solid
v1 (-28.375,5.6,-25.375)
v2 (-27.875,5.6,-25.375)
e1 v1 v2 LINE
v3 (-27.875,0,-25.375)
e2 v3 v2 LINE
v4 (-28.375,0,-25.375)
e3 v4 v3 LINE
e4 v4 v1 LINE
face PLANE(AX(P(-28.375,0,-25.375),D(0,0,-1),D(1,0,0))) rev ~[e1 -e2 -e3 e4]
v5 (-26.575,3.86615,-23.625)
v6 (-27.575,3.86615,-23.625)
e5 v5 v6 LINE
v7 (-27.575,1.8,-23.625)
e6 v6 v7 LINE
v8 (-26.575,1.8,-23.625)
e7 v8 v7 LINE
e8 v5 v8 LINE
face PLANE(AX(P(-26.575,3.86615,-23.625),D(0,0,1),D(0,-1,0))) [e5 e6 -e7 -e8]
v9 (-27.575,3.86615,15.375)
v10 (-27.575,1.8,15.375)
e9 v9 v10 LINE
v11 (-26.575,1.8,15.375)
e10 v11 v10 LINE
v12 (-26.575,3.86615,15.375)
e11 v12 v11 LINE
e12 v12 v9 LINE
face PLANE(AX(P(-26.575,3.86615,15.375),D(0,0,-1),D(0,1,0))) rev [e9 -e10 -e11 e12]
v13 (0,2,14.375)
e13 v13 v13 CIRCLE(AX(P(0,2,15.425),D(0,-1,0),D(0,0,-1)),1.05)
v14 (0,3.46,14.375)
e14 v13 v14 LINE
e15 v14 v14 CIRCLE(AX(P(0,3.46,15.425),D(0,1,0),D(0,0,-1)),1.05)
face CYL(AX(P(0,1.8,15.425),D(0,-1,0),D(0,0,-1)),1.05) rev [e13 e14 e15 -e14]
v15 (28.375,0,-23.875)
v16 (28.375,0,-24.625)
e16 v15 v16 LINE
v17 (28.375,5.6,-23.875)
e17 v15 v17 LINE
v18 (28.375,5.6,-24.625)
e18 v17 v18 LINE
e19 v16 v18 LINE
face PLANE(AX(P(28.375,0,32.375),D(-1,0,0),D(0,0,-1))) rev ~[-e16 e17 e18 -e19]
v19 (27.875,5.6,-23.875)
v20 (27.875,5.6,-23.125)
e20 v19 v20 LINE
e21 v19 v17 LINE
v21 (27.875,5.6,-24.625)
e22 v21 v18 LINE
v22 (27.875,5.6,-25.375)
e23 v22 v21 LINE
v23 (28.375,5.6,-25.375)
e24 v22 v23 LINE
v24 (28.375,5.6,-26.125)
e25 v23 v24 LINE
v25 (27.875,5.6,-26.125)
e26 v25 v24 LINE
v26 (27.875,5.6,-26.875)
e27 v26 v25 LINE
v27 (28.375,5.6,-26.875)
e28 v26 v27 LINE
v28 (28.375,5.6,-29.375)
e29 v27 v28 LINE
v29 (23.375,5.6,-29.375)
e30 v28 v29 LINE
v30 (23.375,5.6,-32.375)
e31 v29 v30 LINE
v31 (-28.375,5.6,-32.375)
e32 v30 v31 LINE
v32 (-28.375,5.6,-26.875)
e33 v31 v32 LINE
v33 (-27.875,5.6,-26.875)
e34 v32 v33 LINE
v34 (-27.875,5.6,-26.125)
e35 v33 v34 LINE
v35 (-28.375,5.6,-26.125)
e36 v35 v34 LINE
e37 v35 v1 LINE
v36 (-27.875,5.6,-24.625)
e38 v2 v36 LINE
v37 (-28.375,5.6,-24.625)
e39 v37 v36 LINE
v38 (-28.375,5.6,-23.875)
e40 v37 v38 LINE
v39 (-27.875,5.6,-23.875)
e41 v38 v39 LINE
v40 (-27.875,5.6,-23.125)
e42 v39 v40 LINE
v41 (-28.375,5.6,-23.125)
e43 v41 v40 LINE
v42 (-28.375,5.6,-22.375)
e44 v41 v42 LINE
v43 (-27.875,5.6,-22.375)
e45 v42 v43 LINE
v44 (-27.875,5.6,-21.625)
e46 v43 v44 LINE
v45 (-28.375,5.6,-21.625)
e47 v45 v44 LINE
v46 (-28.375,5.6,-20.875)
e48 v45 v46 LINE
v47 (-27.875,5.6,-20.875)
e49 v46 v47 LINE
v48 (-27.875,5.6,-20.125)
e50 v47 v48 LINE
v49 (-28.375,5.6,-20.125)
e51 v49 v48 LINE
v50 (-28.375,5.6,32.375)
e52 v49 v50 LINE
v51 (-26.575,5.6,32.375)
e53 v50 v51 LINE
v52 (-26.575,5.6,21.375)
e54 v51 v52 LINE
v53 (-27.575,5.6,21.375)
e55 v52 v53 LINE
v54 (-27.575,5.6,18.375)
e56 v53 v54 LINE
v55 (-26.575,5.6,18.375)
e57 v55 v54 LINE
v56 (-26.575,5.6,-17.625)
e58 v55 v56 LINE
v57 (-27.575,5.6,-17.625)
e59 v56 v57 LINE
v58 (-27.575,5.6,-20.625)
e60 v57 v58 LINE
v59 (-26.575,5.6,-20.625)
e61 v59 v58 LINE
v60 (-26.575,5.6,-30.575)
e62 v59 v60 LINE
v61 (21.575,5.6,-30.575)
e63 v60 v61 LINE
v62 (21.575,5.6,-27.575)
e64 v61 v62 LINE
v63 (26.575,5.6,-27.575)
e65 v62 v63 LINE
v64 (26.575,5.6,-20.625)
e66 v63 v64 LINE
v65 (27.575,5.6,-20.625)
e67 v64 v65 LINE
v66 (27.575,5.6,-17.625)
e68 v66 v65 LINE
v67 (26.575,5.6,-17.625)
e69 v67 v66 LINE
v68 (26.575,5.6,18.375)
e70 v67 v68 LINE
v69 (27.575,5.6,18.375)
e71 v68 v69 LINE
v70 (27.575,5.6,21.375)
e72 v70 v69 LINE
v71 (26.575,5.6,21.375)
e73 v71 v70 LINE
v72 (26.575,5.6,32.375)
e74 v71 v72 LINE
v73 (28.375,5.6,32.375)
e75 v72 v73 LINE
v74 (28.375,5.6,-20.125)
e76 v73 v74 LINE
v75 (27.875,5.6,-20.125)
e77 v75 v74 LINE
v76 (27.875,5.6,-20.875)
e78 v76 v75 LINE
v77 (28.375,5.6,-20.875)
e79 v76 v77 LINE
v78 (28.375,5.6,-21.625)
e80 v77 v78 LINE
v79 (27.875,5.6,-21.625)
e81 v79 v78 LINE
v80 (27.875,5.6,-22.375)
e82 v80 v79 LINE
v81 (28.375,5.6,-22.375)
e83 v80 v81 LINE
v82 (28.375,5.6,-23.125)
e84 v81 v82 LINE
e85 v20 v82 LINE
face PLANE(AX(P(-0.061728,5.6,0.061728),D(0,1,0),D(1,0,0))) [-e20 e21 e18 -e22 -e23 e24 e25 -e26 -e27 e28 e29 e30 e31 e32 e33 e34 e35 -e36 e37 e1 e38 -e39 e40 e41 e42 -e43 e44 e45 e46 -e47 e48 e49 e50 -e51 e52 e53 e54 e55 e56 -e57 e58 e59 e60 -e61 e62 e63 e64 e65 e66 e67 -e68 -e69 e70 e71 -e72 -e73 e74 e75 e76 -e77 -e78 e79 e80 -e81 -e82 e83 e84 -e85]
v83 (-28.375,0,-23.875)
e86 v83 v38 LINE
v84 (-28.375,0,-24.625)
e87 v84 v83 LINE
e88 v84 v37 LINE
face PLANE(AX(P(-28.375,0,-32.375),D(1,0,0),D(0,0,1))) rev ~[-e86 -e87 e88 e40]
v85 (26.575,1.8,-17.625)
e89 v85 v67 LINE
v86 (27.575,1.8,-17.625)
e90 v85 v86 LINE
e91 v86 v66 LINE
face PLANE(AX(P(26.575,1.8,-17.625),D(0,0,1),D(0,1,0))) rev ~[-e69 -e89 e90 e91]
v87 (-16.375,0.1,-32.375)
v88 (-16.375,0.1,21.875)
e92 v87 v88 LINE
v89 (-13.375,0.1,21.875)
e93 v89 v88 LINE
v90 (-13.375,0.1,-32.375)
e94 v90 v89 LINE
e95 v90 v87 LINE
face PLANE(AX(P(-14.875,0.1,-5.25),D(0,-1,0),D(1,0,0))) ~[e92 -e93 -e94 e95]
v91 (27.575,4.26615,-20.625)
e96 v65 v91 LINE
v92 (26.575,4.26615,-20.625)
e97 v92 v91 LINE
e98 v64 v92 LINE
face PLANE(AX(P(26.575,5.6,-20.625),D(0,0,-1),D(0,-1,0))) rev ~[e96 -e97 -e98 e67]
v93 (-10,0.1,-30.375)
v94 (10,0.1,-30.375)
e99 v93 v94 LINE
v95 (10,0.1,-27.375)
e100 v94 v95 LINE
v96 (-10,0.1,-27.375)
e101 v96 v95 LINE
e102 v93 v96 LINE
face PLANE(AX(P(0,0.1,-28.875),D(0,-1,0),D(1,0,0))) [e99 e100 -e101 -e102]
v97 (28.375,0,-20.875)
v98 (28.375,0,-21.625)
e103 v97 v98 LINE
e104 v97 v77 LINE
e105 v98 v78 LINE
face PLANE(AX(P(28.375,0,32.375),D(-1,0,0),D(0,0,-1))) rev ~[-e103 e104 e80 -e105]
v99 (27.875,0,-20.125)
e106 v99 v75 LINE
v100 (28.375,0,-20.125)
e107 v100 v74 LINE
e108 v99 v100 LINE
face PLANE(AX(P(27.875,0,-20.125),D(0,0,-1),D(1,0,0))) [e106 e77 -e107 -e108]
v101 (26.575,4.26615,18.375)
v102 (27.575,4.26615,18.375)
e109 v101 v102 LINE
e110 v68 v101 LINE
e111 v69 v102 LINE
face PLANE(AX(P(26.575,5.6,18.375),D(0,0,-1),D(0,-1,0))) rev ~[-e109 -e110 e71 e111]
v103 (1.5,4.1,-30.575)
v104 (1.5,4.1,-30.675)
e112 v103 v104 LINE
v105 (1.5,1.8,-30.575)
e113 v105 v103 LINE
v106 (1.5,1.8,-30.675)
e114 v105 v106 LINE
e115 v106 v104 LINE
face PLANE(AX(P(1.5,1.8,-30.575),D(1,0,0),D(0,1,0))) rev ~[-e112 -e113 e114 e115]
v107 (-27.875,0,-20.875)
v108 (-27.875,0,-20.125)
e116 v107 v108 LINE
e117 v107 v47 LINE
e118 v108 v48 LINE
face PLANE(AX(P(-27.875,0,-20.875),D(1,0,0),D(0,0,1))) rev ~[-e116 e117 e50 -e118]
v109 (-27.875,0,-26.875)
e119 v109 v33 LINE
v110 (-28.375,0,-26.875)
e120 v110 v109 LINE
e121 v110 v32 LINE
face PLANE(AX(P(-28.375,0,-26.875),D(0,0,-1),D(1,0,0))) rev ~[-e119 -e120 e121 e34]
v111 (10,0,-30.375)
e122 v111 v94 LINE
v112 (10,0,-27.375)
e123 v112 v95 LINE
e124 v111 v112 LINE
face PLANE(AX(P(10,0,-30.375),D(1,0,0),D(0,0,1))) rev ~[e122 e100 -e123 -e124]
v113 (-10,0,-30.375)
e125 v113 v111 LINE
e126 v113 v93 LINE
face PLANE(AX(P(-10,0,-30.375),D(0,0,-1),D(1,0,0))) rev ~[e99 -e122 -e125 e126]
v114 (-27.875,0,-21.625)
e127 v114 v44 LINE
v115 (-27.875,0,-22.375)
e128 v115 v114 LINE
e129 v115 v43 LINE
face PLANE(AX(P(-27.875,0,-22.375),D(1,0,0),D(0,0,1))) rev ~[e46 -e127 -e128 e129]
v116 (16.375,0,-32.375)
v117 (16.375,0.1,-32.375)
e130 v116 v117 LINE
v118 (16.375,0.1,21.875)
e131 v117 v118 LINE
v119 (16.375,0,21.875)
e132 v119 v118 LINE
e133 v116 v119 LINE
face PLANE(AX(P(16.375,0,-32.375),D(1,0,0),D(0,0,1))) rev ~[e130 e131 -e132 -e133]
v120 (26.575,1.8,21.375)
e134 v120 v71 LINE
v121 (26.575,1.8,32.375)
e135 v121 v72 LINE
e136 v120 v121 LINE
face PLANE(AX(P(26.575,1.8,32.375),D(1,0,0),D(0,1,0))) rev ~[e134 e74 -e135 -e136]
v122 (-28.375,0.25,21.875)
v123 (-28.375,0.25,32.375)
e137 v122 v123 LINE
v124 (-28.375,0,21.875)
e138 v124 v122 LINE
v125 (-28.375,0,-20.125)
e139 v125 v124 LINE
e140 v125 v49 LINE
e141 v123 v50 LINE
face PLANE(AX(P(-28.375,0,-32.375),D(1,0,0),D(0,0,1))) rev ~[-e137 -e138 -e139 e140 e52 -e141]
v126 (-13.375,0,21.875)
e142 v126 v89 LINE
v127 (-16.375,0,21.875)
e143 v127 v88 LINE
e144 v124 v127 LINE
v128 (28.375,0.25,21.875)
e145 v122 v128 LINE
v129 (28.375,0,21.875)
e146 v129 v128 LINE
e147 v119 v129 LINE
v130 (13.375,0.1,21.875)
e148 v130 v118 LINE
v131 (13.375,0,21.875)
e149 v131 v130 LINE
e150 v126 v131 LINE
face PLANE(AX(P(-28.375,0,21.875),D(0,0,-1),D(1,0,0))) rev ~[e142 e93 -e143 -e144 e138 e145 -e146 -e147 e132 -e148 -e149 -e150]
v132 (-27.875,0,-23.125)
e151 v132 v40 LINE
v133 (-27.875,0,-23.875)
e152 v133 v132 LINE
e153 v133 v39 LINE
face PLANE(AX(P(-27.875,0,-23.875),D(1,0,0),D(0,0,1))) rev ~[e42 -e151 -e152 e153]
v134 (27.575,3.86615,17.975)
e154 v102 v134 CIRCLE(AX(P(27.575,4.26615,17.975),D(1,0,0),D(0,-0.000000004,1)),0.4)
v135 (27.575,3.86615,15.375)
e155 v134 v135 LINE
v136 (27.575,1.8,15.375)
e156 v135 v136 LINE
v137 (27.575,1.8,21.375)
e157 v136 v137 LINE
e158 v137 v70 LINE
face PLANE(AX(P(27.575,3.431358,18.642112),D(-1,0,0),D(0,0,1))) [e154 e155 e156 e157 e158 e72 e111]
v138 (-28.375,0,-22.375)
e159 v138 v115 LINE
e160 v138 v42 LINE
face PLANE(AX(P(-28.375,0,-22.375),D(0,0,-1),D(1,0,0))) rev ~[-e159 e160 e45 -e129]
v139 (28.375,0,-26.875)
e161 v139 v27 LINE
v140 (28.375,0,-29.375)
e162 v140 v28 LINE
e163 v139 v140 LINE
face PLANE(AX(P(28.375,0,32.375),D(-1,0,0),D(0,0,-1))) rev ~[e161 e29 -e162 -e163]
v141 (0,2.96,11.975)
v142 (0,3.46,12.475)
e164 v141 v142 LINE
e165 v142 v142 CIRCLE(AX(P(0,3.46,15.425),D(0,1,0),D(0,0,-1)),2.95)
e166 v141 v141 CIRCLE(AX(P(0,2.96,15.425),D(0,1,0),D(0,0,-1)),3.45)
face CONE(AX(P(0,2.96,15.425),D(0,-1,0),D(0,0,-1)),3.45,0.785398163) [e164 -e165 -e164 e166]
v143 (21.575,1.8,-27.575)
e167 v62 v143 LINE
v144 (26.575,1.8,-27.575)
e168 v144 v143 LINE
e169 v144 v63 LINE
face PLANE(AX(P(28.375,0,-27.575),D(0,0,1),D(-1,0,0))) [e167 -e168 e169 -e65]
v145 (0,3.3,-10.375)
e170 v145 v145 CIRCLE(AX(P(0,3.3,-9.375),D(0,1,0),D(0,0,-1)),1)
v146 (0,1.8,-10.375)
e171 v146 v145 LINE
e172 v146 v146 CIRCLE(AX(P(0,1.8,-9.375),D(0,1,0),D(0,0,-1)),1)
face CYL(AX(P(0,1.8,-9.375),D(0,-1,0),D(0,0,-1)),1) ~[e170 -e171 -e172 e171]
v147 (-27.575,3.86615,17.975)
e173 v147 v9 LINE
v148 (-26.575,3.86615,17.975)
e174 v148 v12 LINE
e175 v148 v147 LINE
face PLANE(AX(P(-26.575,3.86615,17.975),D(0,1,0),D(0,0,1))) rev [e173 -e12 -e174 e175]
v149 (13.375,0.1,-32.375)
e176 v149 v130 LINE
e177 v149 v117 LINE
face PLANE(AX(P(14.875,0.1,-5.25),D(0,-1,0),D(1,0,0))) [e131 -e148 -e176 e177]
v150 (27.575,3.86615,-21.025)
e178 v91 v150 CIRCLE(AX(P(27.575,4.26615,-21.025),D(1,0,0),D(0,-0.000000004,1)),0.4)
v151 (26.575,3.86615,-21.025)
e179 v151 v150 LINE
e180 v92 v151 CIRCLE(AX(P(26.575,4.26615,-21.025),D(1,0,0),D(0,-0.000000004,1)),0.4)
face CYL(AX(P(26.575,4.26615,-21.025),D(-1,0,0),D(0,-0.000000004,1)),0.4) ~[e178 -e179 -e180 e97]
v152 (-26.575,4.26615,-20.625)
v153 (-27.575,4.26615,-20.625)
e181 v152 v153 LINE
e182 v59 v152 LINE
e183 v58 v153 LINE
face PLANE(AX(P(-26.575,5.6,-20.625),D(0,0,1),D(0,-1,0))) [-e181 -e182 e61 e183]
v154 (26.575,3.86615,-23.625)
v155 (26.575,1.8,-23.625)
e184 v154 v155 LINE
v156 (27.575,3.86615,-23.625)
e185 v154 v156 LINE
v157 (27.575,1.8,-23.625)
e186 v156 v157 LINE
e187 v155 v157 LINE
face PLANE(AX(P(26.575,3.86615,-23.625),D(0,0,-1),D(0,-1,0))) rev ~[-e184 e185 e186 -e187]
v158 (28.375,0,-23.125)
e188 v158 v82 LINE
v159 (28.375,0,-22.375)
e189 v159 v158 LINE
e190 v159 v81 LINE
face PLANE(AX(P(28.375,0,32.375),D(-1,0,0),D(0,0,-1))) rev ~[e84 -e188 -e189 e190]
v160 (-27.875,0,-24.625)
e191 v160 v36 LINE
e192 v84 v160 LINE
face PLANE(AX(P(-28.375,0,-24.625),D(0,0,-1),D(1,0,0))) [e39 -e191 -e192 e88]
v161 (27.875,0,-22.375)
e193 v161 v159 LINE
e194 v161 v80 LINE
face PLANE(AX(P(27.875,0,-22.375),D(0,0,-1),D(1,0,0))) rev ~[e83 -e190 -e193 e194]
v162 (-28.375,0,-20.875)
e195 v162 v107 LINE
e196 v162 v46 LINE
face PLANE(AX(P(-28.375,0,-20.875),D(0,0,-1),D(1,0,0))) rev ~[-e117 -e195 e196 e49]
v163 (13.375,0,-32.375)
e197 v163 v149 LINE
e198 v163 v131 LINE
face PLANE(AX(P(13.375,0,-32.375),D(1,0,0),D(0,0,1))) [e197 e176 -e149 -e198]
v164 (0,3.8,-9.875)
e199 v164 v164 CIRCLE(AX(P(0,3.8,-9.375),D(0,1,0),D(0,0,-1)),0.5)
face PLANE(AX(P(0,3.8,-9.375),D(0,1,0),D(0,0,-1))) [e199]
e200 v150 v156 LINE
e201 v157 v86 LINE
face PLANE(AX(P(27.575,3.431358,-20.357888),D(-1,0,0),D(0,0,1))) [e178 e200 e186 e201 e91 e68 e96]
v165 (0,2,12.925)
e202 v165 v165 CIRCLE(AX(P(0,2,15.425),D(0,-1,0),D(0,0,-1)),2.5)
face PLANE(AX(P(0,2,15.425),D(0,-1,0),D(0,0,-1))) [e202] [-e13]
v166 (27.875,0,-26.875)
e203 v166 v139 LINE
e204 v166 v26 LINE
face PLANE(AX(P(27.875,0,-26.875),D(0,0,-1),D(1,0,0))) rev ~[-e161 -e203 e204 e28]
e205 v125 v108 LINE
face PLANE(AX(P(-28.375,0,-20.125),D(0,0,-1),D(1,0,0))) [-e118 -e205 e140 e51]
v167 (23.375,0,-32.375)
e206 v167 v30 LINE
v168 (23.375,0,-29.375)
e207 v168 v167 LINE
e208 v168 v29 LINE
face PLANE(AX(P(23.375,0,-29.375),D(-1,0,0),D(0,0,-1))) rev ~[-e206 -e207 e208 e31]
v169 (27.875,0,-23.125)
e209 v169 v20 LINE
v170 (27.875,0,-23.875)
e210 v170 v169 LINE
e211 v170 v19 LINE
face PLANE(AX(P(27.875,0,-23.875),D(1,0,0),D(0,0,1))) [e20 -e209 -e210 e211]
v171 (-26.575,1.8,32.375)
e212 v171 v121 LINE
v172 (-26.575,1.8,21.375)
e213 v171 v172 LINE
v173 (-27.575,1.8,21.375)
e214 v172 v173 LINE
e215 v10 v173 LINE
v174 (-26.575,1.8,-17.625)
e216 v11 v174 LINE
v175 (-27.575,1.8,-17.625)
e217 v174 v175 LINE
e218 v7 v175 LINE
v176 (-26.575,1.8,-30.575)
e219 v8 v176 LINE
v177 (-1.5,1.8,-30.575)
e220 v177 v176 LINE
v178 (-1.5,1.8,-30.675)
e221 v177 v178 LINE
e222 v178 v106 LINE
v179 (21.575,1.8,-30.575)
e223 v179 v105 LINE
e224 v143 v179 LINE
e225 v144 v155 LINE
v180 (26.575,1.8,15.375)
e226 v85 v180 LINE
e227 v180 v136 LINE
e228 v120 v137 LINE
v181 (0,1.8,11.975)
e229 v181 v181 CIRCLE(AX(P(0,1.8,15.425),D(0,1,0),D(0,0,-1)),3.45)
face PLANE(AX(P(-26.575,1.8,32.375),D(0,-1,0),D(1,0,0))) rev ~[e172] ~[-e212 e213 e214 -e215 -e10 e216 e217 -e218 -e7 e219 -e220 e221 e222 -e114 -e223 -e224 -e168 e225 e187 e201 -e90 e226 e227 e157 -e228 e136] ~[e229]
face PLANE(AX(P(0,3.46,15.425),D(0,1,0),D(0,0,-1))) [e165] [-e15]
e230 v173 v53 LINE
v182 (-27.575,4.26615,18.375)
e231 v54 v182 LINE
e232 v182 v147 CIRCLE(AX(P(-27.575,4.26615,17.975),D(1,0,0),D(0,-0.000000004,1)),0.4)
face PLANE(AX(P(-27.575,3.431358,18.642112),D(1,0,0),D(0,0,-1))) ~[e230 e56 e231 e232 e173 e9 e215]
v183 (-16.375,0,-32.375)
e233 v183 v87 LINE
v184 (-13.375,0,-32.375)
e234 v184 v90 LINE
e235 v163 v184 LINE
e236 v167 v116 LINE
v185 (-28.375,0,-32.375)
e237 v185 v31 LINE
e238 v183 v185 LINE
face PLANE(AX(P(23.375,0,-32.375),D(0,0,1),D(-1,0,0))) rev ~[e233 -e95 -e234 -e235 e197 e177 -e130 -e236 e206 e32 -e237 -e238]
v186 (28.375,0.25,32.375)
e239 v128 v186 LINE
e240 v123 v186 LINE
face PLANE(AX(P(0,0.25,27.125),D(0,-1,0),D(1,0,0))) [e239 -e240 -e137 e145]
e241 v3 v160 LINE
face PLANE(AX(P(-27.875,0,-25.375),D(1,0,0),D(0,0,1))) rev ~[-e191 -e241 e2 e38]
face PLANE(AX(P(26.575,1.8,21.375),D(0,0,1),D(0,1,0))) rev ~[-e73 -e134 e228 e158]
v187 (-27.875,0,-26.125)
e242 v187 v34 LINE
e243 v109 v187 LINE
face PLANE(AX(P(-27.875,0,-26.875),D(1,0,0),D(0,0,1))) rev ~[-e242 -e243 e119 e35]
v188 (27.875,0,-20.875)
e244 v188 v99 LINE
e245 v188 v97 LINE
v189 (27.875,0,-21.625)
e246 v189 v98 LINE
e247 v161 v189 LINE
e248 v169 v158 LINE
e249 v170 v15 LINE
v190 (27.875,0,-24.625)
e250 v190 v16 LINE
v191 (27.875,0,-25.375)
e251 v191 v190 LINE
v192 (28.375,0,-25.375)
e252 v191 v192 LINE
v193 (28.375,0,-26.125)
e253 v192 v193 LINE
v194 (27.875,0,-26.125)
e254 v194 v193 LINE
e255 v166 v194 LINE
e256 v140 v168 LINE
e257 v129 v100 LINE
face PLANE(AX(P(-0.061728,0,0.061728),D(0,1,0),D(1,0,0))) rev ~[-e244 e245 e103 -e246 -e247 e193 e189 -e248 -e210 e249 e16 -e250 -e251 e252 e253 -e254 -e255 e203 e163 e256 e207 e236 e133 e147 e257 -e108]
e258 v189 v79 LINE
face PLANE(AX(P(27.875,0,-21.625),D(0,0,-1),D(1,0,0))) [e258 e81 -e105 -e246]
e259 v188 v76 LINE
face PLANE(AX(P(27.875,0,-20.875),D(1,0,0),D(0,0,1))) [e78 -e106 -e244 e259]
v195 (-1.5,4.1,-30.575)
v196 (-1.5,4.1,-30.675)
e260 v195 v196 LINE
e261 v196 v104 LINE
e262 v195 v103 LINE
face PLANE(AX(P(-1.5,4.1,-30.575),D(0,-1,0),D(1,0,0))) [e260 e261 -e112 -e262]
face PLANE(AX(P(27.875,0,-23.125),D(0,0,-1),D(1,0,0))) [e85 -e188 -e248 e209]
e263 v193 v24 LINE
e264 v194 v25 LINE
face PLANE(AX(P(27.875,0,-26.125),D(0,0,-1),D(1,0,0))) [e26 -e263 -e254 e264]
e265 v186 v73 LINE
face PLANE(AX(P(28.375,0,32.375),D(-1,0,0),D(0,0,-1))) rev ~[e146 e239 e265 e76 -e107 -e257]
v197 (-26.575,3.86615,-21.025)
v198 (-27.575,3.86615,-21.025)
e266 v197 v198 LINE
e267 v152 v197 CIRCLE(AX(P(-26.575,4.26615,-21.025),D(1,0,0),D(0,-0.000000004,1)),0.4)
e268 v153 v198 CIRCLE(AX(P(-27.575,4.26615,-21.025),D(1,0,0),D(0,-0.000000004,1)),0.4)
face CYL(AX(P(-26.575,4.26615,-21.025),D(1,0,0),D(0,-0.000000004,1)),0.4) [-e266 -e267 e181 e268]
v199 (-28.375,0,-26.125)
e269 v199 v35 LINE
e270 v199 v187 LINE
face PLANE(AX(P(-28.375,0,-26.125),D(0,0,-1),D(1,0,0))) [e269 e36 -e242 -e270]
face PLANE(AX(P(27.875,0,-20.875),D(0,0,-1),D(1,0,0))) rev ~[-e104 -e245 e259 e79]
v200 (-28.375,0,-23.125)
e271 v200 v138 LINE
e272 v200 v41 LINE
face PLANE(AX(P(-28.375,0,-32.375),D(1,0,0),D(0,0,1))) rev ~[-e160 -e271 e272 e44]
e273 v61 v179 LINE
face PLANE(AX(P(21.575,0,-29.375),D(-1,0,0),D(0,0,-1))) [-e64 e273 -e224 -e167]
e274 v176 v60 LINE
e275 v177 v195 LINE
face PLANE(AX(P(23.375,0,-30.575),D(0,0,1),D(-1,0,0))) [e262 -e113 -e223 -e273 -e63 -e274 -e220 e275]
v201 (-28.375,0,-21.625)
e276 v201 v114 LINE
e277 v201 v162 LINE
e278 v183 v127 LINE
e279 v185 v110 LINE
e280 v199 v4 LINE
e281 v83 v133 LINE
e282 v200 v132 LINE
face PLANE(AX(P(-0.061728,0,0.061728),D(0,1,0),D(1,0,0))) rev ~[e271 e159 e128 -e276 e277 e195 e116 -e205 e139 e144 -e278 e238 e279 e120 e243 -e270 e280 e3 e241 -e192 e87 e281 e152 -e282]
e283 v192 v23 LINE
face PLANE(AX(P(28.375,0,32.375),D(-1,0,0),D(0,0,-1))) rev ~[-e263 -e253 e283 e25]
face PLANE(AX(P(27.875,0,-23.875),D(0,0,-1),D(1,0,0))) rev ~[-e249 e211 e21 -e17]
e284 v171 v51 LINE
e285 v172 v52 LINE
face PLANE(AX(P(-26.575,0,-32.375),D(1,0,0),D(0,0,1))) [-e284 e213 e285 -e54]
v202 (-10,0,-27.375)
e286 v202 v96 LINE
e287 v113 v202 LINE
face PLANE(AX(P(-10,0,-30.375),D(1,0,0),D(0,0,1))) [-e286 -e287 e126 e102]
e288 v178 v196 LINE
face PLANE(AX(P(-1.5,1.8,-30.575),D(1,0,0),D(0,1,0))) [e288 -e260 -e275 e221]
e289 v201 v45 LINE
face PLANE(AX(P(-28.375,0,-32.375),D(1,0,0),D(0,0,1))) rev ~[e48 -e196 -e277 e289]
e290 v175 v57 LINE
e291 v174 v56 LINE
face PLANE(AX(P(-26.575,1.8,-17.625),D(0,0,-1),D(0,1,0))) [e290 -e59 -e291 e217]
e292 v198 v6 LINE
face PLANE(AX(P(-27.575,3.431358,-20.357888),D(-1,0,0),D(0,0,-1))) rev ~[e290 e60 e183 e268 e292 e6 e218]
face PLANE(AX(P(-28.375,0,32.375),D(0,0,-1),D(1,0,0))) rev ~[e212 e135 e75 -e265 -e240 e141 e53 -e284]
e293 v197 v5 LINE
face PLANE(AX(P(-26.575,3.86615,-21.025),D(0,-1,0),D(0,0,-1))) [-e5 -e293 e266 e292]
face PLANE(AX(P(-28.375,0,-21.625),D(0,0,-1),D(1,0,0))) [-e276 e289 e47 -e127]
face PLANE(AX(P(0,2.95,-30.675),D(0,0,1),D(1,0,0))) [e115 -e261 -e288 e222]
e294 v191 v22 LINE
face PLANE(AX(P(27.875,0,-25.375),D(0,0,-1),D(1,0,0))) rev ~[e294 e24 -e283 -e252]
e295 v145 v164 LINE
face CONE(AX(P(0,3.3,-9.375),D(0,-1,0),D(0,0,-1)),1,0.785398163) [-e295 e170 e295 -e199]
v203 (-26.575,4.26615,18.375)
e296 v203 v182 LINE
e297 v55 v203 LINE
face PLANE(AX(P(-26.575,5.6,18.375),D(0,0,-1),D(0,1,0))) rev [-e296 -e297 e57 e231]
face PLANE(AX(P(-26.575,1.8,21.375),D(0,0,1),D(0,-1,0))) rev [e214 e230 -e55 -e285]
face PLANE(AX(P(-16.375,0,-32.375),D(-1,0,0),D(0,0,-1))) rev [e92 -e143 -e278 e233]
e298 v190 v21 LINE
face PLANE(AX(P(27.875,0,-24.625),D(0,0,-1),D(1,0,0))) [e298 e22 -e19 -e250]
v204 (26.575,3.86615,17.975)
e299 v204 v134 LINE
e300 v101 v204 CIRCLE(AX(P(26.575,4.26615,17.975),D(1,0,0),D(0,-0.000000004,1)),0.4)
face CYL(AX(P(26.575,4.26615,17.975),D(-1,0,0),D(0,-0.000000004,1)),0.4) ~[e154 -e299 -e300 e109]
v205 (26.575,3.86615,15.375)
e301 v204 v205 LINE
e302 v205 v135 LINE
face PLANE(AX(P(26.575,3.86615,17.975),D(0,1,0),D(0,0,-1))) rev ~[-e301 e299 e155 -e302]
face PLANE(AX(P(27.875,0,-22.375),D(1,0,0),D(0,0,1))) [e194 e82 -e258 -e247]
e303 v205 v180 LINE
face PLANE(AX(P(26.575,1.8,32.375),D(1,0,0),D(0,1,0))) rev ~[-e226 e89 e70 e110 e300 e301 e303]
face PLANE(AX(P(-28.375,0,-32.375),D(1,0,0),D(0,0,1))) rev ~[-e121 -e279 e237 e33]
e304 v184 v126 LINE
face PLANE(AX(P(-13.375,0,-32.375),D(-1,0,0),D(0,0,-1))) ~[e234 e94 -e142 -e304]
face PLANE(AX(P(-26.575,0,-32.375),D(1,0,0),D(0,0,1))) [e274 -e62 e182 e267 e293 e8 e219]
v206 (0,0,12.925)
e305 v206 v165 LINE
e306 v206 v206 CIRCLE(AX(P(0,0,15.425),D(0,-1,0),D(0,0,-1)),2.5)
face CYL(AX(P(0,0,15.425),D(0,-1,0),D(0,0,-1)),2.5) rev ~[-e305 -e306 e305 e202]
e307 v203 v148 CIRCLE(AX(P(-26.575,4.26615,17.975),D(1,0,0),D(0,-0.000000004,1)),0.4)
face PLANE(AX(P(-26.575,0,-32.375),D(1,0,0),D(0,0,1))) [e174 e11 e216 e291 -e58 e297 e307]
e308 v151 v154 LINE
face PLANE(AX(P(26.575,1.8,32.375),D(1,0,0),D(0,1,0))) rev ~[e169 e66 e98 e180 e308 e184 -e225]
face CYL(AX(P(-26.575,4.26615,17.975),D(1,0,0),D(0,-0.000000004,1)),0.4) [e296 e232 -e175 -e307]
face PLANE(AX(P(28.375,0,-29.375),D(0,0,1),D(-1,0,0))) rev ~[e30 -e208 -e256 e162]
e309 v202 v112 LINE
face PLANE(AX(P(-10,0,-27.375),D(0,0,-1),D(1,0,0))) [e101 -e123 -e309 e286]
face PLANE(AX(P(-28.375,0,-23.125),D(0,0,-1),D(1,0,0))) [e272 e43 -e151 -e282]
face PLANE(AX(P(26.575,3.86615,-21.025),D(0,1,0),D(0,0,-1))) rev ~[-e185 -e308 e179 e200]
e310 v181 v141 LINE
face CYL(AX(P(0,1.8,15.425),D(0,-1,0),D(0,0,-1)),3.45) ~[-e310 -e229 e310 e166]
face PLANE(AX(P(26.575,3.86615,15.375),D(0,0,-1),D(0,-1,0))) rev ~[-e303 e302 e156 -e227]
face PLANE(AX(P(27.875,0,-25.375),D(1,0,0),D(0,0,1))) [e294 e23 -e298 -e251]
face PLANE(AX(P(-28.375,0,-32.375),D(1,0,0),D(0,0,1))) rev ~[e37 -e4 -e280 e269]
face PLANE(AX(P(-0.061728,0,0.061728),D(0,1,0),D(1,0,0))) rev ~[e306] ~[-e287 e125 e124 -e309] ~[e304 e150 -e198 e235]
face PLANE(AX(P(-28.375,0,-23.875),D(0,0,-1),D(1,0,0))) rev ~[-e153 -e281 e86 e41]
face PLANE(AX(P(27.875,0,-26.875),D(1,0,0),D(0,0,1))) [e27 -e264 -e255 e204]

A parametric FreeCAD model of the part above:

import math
import FreeCAD as App
import Part
import Sketcher

V = App.Vector
Q = App.Units.Quantity


def edges_at(feature, points):
    """Names of the edges that pass closest to the given points."""
    edges = feature.Shape.Edges
    near = lambda p: min(range(len(edges)), key=lambda i: edges[i].distToShape(Part.Vertex(*p))[0])
    return sorted({f"Edge{near(p) + 1}" for p in points})


def faces_at(feature, points):
    """Names of the faces that lie closest to the given points."""
    faces = feature.Shape.Faces
    near = lambda p: min(range(len(faces)), key=lambda i: faces[i].distToShape(Part.Vertex(*p))[0])
    return sorted({f"Face{near(p) + 1}" for p in points})

doc = App.newDocument("Part")
body = doc.addObject("PartDesign::Body", "Body")

sketch1 = doc.addObject("Sketcher::SketchObject", "Sketch")
body.addObject(sketch1)
sketch1.AttachmentSupport = (doc.XZ_Plane, [""])
sketch1.MapMode = "FlatFace"
sketch1.addGeometry(Part.LineSegment(V(23.4, -32.4, 0), V(-28.4, -32.4, 0)), False)
sketch1.addGeometry(Part.LineSegment(V(-28.4, -32.4, 0), V(-28.4, 32.4, 0)), False)
sketch1.addGeometry(Part.LineSegment(V(-28.4, 32.4, 0), V(28.4, 32.4, 0)), False)
sketch1.addGeometry(Part.LineSegment(V(28.4, 32.4, 0), V(28.4, -29.4, 0)), False)
sketch1.addGeometry(Part.LineSegment(V(28.4, -29.4, 0), V(23.4, -29.4, 0)), False)
sketch1.addGeometry(Part.LineSegment(V(23.4, -29.4, 0), V(23.4, -32.4, 0)), False)
sketch1.addConstraint(Sketcher.Constraint("Coincident", 0, 2, 1, 1))
sketch1.addConstraint(Sketcher.Constraint("Coincident", 1, 2, 2, 1))
sketch1.addConstraint(Sketcher.Constraint("Coincident", 2, 2, 3, 1))
sketch1.addConstraint(Sketcher.Constraint("Coincident", 3, 2, 4, 1))
sketch1.addConstraint(Sketcher.Constraint("Coincident", 4, 2, 5, 1))
sketch1.addConstraint(Sketcher.Constraint("Coincident", 5, 2, 0, 1))
sketch1.addConstraint(Sketcher.Constraint("Horizontal", 0))
sketch1.addConstraint(Sketcher.Constraint("Vertical", 1))
sketch1.addConstraint(Sketcher.Constraint("Horizontal", 2))
sketch1.addConstraint(Sketcher.Constraint("Vertical", 3))
sketch1.addConstraint(Sketcher.Constraint("Horizontal", 4))
sketch1.addConstraint(Sketcher.Constraint("Vertical", 5))
sketch1.addConstraint(Sketcher.Constraint("Symmetric", 0, 2, 2, 2, -1, 1))
sketch1.addConstraint(Sketcher.Constraint("DistanceX", 4, 2, 4, 1, Q("5 mm")))
sketch1.addConstraint(Sketcher.Constraint("DistanceY", 5, 2, 5, 1, Q("3 mm")))
sketch1.addConstraint(Sketcher.Constraint("DistanceX", 0, 2, 0, 1, Q("51.75 mm")))
sketch1.addConstraint(Sketcher.Constraint("DistanceY", 1, 1, 1, 2, Q("64.75 mm")))
pad1 = doc.addObject("PartDesign::Pad", "Pad")
body.addObject(pad1)
pad1.Profile = sketch1
pad1.Length = 5.6
pad1.Reversed = True
doc.recompute()

thickness = doc.addObject("PartDesign::Thickness", "Thickness")
body.addObject(thickness)
thickness.Base = (pad1, faces_at(pad1, [(0, 5.6, 0)]))
thickness.Value = 1.8
thickness.Reversed = True
thickness.Join = "Intersection"

sketch2 = doc.addObject("Sketcher::SketchObject", "Sketch001")
body.addObject(sketch2)
sketch2.AttachmentSupport = (doc.XY_Plane, [""])
sketch2.MapMode = "FlatFace"
sketch2.AttachmentOffset = App.Placement(V(0, 0, 32.375), App.Rotation())
sketch2.addGeometry(Part.LineSegment(V(-26.6, 5.6, 0), V(-26.6, 1.8, 0)), False)
sketch2.addGeometry(Part.LineSegment(V(-26.6, 1.8, 0), V(26.6, 1.8, 0)), False)
sketch2.addGeometry(Part.LineSegment(V(26.6, 1.8, 0), V(26.6, 5.6, 0)), False)
sketch2.addGeometry(Part.LineSegment(V(26.6, 5.6, 0), V(-26.6, 5.6, 0)), False)
sketch2.addConstraint(Sketcher.Constraint("Coincident", 0, 2, 1, 1))
sketch2.addConstraint(Sketcher.Constraint("Coincident", 1, 2, 2, 1))
sketch2.addConstraint(Sketcher.Constraint("Coincident", 2, 2, 3, 1))
sketch2.addConstraint(Sketcher.Constraint("Coincident", 3, 2, 0, 1))
sketch2.addConstraint(Sketcher.Constraint("Vertical", 0))
sketch2.addConstraint(Sketcher.Constraint("Horizontal", 1))
sketch2.addConstraint(Sketcher.Constraint("Vertical", 2))
sketch2.addConstraint(Sketcher.Constraint("Horizontal", 3))
sketch2.addConstraint(Sketcher.Constraint("DistanceY", 0, 2, 0, 1, Q("3.8 mm")))
sketch2.addConstraint(Sketcher.Constraint("DistanceX", 1, 1, 1, 2, Q("53.15 mm")))
sketch2.addConstraint(Sketcher.Constraint("DistanceY", -1, 1, 0, 2, Q("1.8 mm")))
sketch2.addConstraint(Sketcher.Constraint("DistanceX", 0, 2, -1, 1, Q("26.575 mm")))
pocket1 = doc.addObject("PartDesign::Pocket", "Pocket")
body.addObject(pocket1)
pocket1.Profile = sketch2
pocket1.Type = "UpToFirst"

sketch3 = doc.addObject("Sketcher::SketchObject", "Sketch002")
body.addObject(sketch3)
sketch3.AttachmentSupport = (doc.XZ_Plane, [""])
sketch3.MapMode = "FlatFace"
sketch3.addGeometry(Part.LineSegment(V(-28.4, -26.1, 0), V(-28.4, -26.9, 0)), False)
sketch3.addGeometry(Part.LineSegment(V(-28.4, -26.9, 0), V(-27.9, -26.9, 0)), False)
sketch3.addGeometry(Part.LineSegment(V(-27.9, -26.9, 0), V(-27.9, -26.1, 0)), False)
sketch3.addGeometry(Part.LineSegment(V(-27.9, -26.1, 0), V(-28.4, -26.1, 0)), False)
sketch3.addGeometry(Part.LineSegment(V(27.9, -26.1, 0), V(27.9, -26.9, 0)), False)
sketch3.addGeometry(Part.LineSegment(V(27.9, -26.9, 0), V(28.4, -26.9, 0)), False)
sketch3.addGeometry(Part.LineSegment(V(28.4, -26.9, 0), V(28.4, -26.1, 0)), False)
sketch3.addGeometry(Part.LineSegment(V(28.4, -26.1, 0), V(27.9, -26.1, 0)), False)
sketch3.addConstraint(Sketcher.Constraint("Coincident", 0, 2, 1, 1))
sketch3.addConstraint(Sketcher.Constraint("Coincident", 1, 2, 2, 1))
sketch3.addConstraint(Sketcher.Constraint("Coincident", 2, 2, 3, 1))
sketch3.addConstraint(Sketcher.Constraint("Coincident", 3, 2, 0, 1))
sketch3.addConstraint(Sketcher.Constraint("Coincident", 4, 2, 5, 1))
sketch3.addConstraint(Sketcher.Constraint("Coincident", 5, 2, 6, 1))
sketch3.addConstraint(Sketcher.Constraint("Coincident", 6, 2, 7, 1))
sketch3.addConstraint(Sketcher.Constraint("Coincident", 7, 2, 4, 1))
sketch3.addConstraint(Sketcher.Constraint("Vertical", 0))
sketch3.addConstraint(Sketcher.Constraint("Horizontal", 1))
sketch3.addConstraint(Sketcher.Constraint("Vertical", 2))
sketch3.addConstraint(Sketcher.Constraint("Horizontal", 3))
sketch3.addConstraint(Sketcher.Constraint("Vertical", 4))
sketch3.addConstraint(Sketcher.Constraint("Horizontal", 5))
sketch3.addConstraint(Sketcher.Constraint("Vertical", 6))
sketch3.addConstraint(Sketcher.Constraint("Horizontal", 7))
sketch3.addConstraint(Sketcher.Constraint("Symmetric", 1, 2, 4, 2, -2))
sketch3.addConstraint(Sketcher.Constraint("Symmetric", 3, 2, 6, 2, -2))
sketch3.addConstraint(Sketcher.Constraint("DistanceX", 1, 1, 1, 2, Q("0.5 mm")))
sketch3.addConstraint(Sketcher.Constraint("DistanceY", 0, 2, 0, 1, Q("0.75 mm")))
sketch3.addConstraint(Sketcher.Constraint("DistanceX", 1, 2, 4, 2, Q("55.75 mm")))
sketch3.addConstraint(Sketcher.Constraint("DistanceY", 0, 2, -1, 1, Q("26.875 mm")))
pocket2 = doc.addObject("PartDesign::Pocket", "Pocket001")
body.addObject(pocket2)
pocket2.Profile = sketch3
pocket2.Length = 5.6
doc.recompute()

linearpattern = doc.addObject("PartDesign::LinearPattern", "LinearPattern")
body.addObject(linearpattern)
linearpattern.Originals = [pocket2]
linearpattern.Direction = (doc.Z_Axis, [""])
linearpattern.Mode = "offset"
linearpattern.Offset = 1.5
linearpattern.Occurrences = 5
body.Tip = linearpattern

sketch4 = doc.addObject("Sketcher::SketchObject", "Sketch003")
body.addObject(sketch4)
sketch4.AttachmentSupport = (doc.XZ_Plane, [""])
sketch4.MapMode = "FlatFace"
sketch4.AttachmentOffset = App.Placement(V(0, 0, -1.8), App.Rotation())
sketch4.addGeometry(Part.Circle(V(0, 15.4, 0), V(0, 0, 1), 3.5), False)
sketch4.addGeometry(Part.Circle(V(0, 15.4, 0), V(0, 0, 1), 1.1), False)
sketch4.addConstraint(Sketcher.Constraint("Coincident", 1, 3, 0, 3))
sketch4.addConstraint(Sketcher.Constraint("PointOnObject", 0, 3, -2))
sketch4.addConstraint(Sketcher.Constraint("Diameter", 0, Q("6.9 mm")))
sketch4.addConstraint(Sketcher.Constraint("Diameter", 1, Q("2.1 mm")))
sketch4.addConstraint(Sketcher.Constraint("DistanceY", -1, 1, 0, 3, Q("15.425 mm")))
pad2 = doc.addObject("PartDesign::Pad", "Pad001")
body.addObject(pad2)
pad2.Profile = sketch4
pad2.Length = 1.66
pad2.Reversed = True

sketch5 = doc.addObject("Sketcher::SketchObject", "Sketch004")
body.addObject(sketch5)
sketch5.AttachmentSupport = (doc.XZ_Plane, [""])
sketch5.MapMode = "FlatFace"
sketch5.AttachmentOffset = App.Placement(V(0, 0, -1.8), App.Rotation())
sketch5.addGeometry(Part.Circle(V(0, -9.4, 0), V(0, 0, 1), 1), False)
sketch5.addConstraint(Sketcher.Constraint("PointOnObject", 0, 3, -2))
sketch5.addConstraint(Sketcher.Constraint("Diameter", 0, Q("2 mm")))
sketch5.addConstraint(Sketcher.Constraint("DistanceY", 0, 3, -1, 1, Q("9.375 mm")))
pad3 = doc.addObject("PartDesign::Pad", "Pad002")
body.addObject(pad3)
pad3.Profile = sketch5
pad3.Length = 2
pad3.Reversed = True
doc.recompute()

chamfer = doc.addObject("PartDesign::Chamfer", "Chamfer")
body.addObject(chamfer)
chamfer.Base = (pad3, edges_at(pad3, [(0, 3.46, 18.875), (0, 3.8, -8.375)]))
chamfer.Size = 0.5

sketch6 = doc.addObject("Sketcher::SketchObject", "Sketch005")
body.addObject(sketch6)
sketch6.AttachmentSupport = (doc.XZ_Plane, [""])
sketch6.MapMode = "FlatFace"
sketch6.addGeometry(Part.Circle(V(0, 15.4, 0), V(0, 0, 1), 2.5), False)
sketch6.addConstraint(Sketcher.Constraint("PointOnObject", 0, 3, -2))
sketch6.addConstraint(Sketcher.Constraint("Diameter", 0, Q("5 mm")))
sketch6.addConstraint(Sketcher.Constraint("DistanceY", -1, 1, 0, 3, Q("15.425 mm")))
pocket3 = doc.addObject("PartDesign::Pocket", "Pocket002")
body.addObject(pocket3)
pocket3.Profile = sketch6
pocket3.Length = 2

sketch7 = doc.addObject("Sketcher::SketchObject", "Sketch006")
body.addObject(sketch7)
sketch7.AttachmentSupport = (doc.YZ_Plane, [""])
sketch7.MapMode = "FlatFace"
sketch7.AttachmentOffset = App.Placement(V(0, 0, 26.575), App.Rotation())
sketch7.addGeometry(Part.LineSegment(V(3.87, 15.38, 0), V(1.8, 15.38, 0)), False)
sketch7.addGeometry(Part.LineSegment(V(1.8, 15.38, 0), V(1.8, 21.38, 0)), False)
sketch7.addGeometry(Part.LineSegment(V(1.8, 21.38, 0), V(5.6, 21.38, 0)), False)
sketch7.addGeometry(Part.LineSegment(V(5.6, 21.38, 0), V(5.6, 18.38, 0)), False)
sketch7.addGeometry(Part.LineSegment(V(5.6, 18.38, 0), V(4.27, 18.38, 0)), False)
sketch7.addGeometry(Part.ArcOfCircle(Part.Circle(V(4.27, 17.97, 0), V(0, 0, 1), 0.4), math.radians(90), math.radians(180)), False)
sketch7.addGeometry(Part.LineSegment(V(3.87, 17.98, 0), V(3.87, 15.38, 0)), False)
sketch7.addConstraint(Sketcher.Constraint("Coincident", 0, 2, 1, 1))
sketch7.addConstraint(Sketcher.Constraint("Coincident", 1, 2, 2, 1))
sketch7.addConstraint(Sketcher.Constraint("Coincident", 2, 2, 3, 1))
sketch7.addConstraint(Sketcher.Constraint("Coincident", 3, 2, 4, 1))
sketch7.addConstraint(Sketcher.Constraint("Tangent", 4, 2, 5, 1))
sketch7.addConstraint(Sketcher.Constraint("Tangent", 5, 2, 6, 1))
sketch7.addConstraint(Sketcher.Constraint("Coincident", 6, 2, 0, 1))
sketch7.addConstraint(Sketcher.Constraint("Horizontal", 0))
sketch7.addConstraint(Sketcher.Constraint("Vertical", 1))
sketch7.addConstraint(Sketcher.Constraint("Horizontal", 2))
sketch7.addConstraint(Sketcher.Constraint("Vertical", 3))
sketch7.addConstraint(Sketcher.Constraint("Horizontal", 4))
sketch7.addConstraint(Sketcher.Constraint("Vertical", 6))
sketch7.addConstraint(Sketcher.Constraint("Radius", 5, Q("0.4 mm")))
sketch7.addConstraint(Sketcher.Constraint("DistanceY", 1, 1, 1, 2, Q("6 mm")))
sketch7.addConstraint(Sketcher.Constraint("DistanceY", 3, 2, 3, 1, Q("3 mm")))
sketch7.addConstraint(Sketcher.Constraint("DistanceX", 2, 1, 2, 2, Q("3.8 mm")))
sketch7.addConstraint(Sketcher.Constraint("DistanceX", -1, 1, 0, 2, Q("1.8 mm")))
sketch7.addConstraint(Sketcher.Constraint("DistanceY", -1, 1, 5, 3, Q("17.975 mm")))
sketch7.addConstraint(Sketcher.Constraint("DistanceX", 0, 2, 0, 1, Q("2.06615 mm")))
pocket4 = doc.addObject("PartDesign::Pocket", "Pocket003")
body.addObject(pocket4)
pocket4.Profile = sketch7
pocket4.Length = 1
pocket4.Reversed = True
doc.recompute()

linearpattern2 = doc.addObject("PartDesign::LinearPattern", "LinearPattern001")
body.addObject(linearpattern2)
linearpattern2.Originals = [pocket4]
linearpattern2.Direction = (doc.Z_Axis, [""])
linearpattern2.Mode = "offset"
linearpattern2.Offset = 39
linearpattern2.Occurrences = 2
linearpattern2.Reversed = True
body.Tip = linearpattern2
doc.recompute()

mirrored = doc.addObject("PartDesign::Mirrored", "Mirrored")
body.addObject(mirrored)
mirrored.Originals = [pocket4]
mirrored.MirrorPlane = (doc.YZ_Plane, [""])
body.Tip = mirrored

sketch8 = doc.addObject("Sketcher::SketchObject", "Sketch007")
body.addObject(sketch8)
sketch8.AttachmentSupport = (doc.YZ_Plane, [""])
sketch8.MapMode = "FlatFace"
sketch8.AttachmentOffset = App.Placement(V(0, 0, -26.575), App.Rotation())
sketch8.addGeometry(Part.LineSegment(V(1.8, -23.62, 0), V(3.87, -23.62, 0)), False)
sketch8.addGeometry(Part.LineSegment(V(3.87, -23.62, 0), V(3.87, -21.02, 0)), False)
sketch8.addGeometry(Part.ArcOfCircle(Part.Circle(V(4.27, -21.03, 0), V(0, 0, 1), 0.4), math.radians(90), math.radians(180)), False)
sketch8.addGeometry(Part.LineSegment(V(4.27, -20.62, 0), V(5.6, -20.62, 0)), False)
sketch8.addGeometry(Part.LineSegment(V(5.6, -20.62, 0), V(5.6, -17.62, 0)), False)
sketch8.addGeometry(Part.LineSegment(V(5.6, -17.62, 0), V(1.8, -17.62, 0)), False)
sketch8.addGeometry(Part.LineSegment(V(1.8, -17.62, 0), V(1.8, -23.62, 0)), False)
sketch8.addConstraint(Sketcher.Constraint("Coincident", 0, 2, 1, 1))
sketch8.addConstraint(Sketcher.Constraint("Tangent", 1, 2, 2, 2))
sketch8.addConstraint(Sketcher.Constraint("Tangent", 2, 1, 3, 1))
sketch8.addConstraint(Sketcher.Constraint("Coincident", 3, 2, 4, 1))
sketch8.addConstraint(Sketcher.Constraint("Coincident", 4, 2, 5, 1))
sketch8.addConstraint(Sketcher.Constraint("Coincident", 5, 2, 6, 1))
sketch8.addConstraint(Sketcher.Constraint("Coincident", 6, 2, 0, 1))
sketch8.addConstraint(Sketcher.Constraint("Horizontal", 0))
sketch8.addConstraint(Sketcher.Constraint("Vertical", 1))
sketch8.addConstraint(Sketcher.Constraint("Horizontal", 3))
sketch8.addConstraint(Sketcher.Constraint("Vertical", 4))
sketch8.addConstraint(Sketcher.Constraint("Horizontal", 5))
sketch8.addConstraint(Sketcher.Constraint("Vertical", 6))
sketch8.addConstraint(Sketcher.Constraint("Radius", 2, Q("0.4 mm")))
sketch8.addConstraint(Sketcher.Constraint("DistanceY", 4, 1, 4, 2, Q("3 mm")))
sketch8.addConstraint(Sketcher.Constraint("DistanceY", 6, 2, 6, 1, Q("6 mm")))
sketch8.addConstraint(Sketcher.Constraint("DistanceX", 5, 2, 5, 1, Q("3.8 mm")))
sketch8.addConstraint(Sketcher.Constraint("DistanceX", -1, 1, 3, 2, Q("5.6 mm")))
sketch8.addConstraint(Sketcher.Constraint("DistanceY", 2, 3, -1, 1, Q("21.025 mm")))
sketch8.addConstraint(Sketcher.Constraint("DistanceX", 0, 1, 0, 2, Q("2.06615 mm")))
pocket5 = doc.addObject("PartDesign::Pocket", "Pocket004")
body.addObject(pocket5)
pocket5.Profile = sketch8
pocket5.Length = 1

sketch9 = doc.addObject("Sketcher::SketchObject", "Sketch008")
body.addObject(sketch9)
sketch9.AttachmentSupport = (doc.XZ_Plane, [""])
sketch9.MapMode = "FlatFace"
sketch9.addGeometry(Part.LineSegment(V(-28, 32, 0), V(-28, 22, 0)), False)
sketch9.addGeometry(Part.LineSegment(V(-28, 22, 0), V(28, 22, 0)), False)
sketch9.addGeometry(Part.LineSegment(V(28, 22, 0), V(28, 32, 0)), False)
sketch9.addGeometry(Part.LineSegment(V(28, 32, 0), V(-28, 32, 0)), False)
sketch9.addConstraint(Sketcher.Constraint("Coincident", 0, 2, 1, 1))
sketch9.addConstraint(Sketcher.Constraint("Coincident", 1, 2, 2, 1))
sketch9.addConstraint(Sketcher.Constraint("Coincident", 2, 2, 3, 1))
sketch9.addConstraint(Sketcher.Constraint("Coincident", 3, 2, 0, 1))
sketch9.addConstraint(Sketcher.Constraint("Vertical", 0))
sketch9.addConstraint(Sketcher.Constraint("Horizontal", 1))
sketch9.addConstraint(Sketcher.Constraint("Vertical", 2))
sketch9.addConstraint(Sketcher.Constraint("Horizontal", 3))
sketch9.addConstraint(Sketcher.Constraint("DistanceY", 0, 2, 0, 1, Q("10.5 mm")))
sketch9.addConstraint(Sketcher.Constraint("DistanceX", 1, 1, 1, 2, Q("56.75 mm")))
sketch9.addConstraint(Sketcher.Constraint("DistanceX", 0, 2, -1, 1, Q("28.375 mm")))
sketch9.addConstraint(Sketcher.Constraint("DistanceY", -1, 1, 0, 2, Q("21.875 mm")))
pocket6 = doc.addObject("PartDesign::Pocket", "Pocket005")
body.addObject(pocket6)
pocket6.Profile = sketch9
pocket6.Length = 0.25

sketch10 = doc.addObject("Sketcher::SketchObject", "Sketch009")
body.addObject(sketch10)
sketch10.AttachmentSupport = (doc.XZ_Plane, [""])
sketch10.MapMode = "FlatFace"
sketch10.addGeometry(Part.LineSegment(V(13.4, 21.9, 0), V(13.4, -32.4, 0)), False)
sketch10.addGeometry(Part.LineSegment(V(13.4, -32.4, 0), V(16.4, -32.4, 0)), False)
sketch10.addGeometry(Part.LineSegment(V(16.4, -32.4, 0), V(16.4, 21.9, 0)), False)
sketch10.addGeometry(Part.LineSegment(V(16.4, 21.9, 0), V(13.4, 21.9, 0)), False)
sketch10.addConstraint(Sketcher.Constraint("Coincident", 0, 2, 1, 1))
sketch10.addConstraint(Sketcher.Constraint("Coincident", 1, 2, 2, 1))
sketch10.addConstraint(Sketcher.Constraint("Coincident", 2, 2, 3, 1))
sketch10.addConstraint(Sketcher.Constraint("Coincident", 3, 2, 0, 1))
sketch10.addConstraint(Sketcher.Constraint("Vertical", 0))
sketch10.addConstraint(Sketcher.Constraint("Horizontal", 1))
sketch10.addConstraint(Sketcher.Constraint("Vertical", 2))
sketch10.addConstraint(Sketcher.Constraint("Horizontal", 3))
sketch10.addConstraint(Sketcher.Constraint("DistanceX", 1, 1, 1, 2, Q("3 mm")))
sketch10.addConstraint(Sketcher.Constraint("DistanceY", 0, 2, 0, 1, Q("54.25 mm")))
sketch10.addConstraint(Sketcher.Constraint("DistanceX", -1, 1, 0, 2, Q("13.375 mm")))
sketch10.addConstraint(Sketcher.Constraint("DistanceY", 0, 2, -1, 1, Q("32.375 mm")))
pocket7 = doc.addObject("PartDesign::Pocket", "Pocket006")
body.addObject(pocket7)
pocket7.Profile = sketch10
pocket7.Length = 0.1
doc.recompute()

mirrored2 = doc.addObject("PartDesign::Mirrored", "Mirrored001")
body.addObject(mirrored2)
mirrored2.Originals = [pocket7]
mirrored2.MirrorPlane = (doc.YZ_Plane, [""])
body.Tip = mirrored2

sketch11 = doc.addObject("Sketcher::SketchObject", "Sketch010")
body.addObject(sketch11)
sketch11.AttachmentSupport = (doc.XZ_Plane, [""])
sketch11.MapMode = "FlatFace"
sketch11.addGeometry(Part.LineSegment(V(-10, -27.4, 0), V(-10, -30.4, 0)), False)
sketch11.addGeometry(Part.LineSegment(V(-10, -30.4, 0), V(10, -30.4, 0)), False)
sketch11.addGeometry(Part.LineSegment(V(10, -30.4, 0), V(10, -27.4, 0)), False)
sketch11.addGeometry(Part.LineSegment(V(10, -27.4, 0), V(-10, -27.4, 0)), False)
sketch11.addConstraint(Sketcher.Constraint("Coincident", 0, 2, 1, 1))
sketch11.addConstraint(Sketcher.Constraint("Coincident", 1, 2, 2, 1))
sketch11.addConstraint(Sketcher.Constraint("Coincident", 2, 2, 3, 1))
sketch11.addConstraint(Sketcher.Constraint("Coincident", 3, 2, 0, 1))
sketch11.addConstraint(Sketcher.Constraint("Vertical", 0))
sketch11.addConstraint(Sketcher.Constraint("Horizontal", 1))
sketch11.addConstraint(Sketcher.Constraint("Vertical", 2))
sketch11.addConstraint(Sketcher.Constraint("Horizontal", 3))
sketch11.addConstraint(Sketcher.Constraint("DistanceX", 1, 1, 1, 2, Q("20 mm")))
sketch11.addConstraint(Sketcher.Constraint("DistanceY", 0, 2, 0, 1, Q("3 mm")))
sketch11.addConstraint(Sketcher.Constraint("DistanceX", 0, 2, -1, 1, Q("10 mm")))
sketch11.addConstraint(Sketcher.Constraint("DistanceY", 0, 2, -1, 1, Q("30.375 mm")))
pocket8 = doc.addObject("PartDesign::Pocket", "Pocket007")
body.addObject(pocket8)
pocket8.Profile = sketch11
pocket8.Length = 0.1

sketch12 = doc.addObject("Sketcher::SketchObject", "Sketch011")
body.addObject(sketch12)
sketch12.AttachmentSupport = (doc.XY_Plane, [""])
sketch12.MapMode = "FlatFace"
sketch12.AttachmentOffset = App.Placement(V(0, 0, -30.575), App.Rotation())
sketch12.addGeometry(Part.LineSegment(V(-1.5, 4.1, 0), V(-1.5, 1.8, 0)), False)
sketch12.addGeometry(Part.LineSegment(V(-1.5, 1.8, 0), V(1.5, 1.8, 0)), False)
sketch12.addGeometry(Part.LineSegment(V(1.5, 1.8, 0), V(1.5, 4.1, 0)), False)
sketch12.addGeometry(Part.LineSegment(V(1.5, 4.1, 0), V(-1.5, 4.1, 0)), False)
sketch12.addConstraint(Sketcher.Constraint("Coincident", 0, 2, 1, 1))
sketch12.addConstraint(Sketcher.Constraint("Coincident", 1, 2, 2, 1))
sketch12.addConstraint(Sketcher.Constraint("Coincident", 2, 2, 3, 1))
sketch12.addConstraint(Sketcher.Constraint("Coincident", 3, 2, 0, 1))
sketch12.addConstraint(Sketcher.Constraint("Vertical", 0))
sketch12.addConstraint(Sketcher.Constraint("Horizontal", 1))
sketch12.addConstraint(Sketcher.Constraint("Vertical", 2))
sketch12.addConstraint(Sketcher.Constraint("Horizontal", 3))
sketch12.addConstraint(Sketcher.Constraint("DistanceX", 1, 1, 1, 2, Q("3 mm")))
sketch12.addConstraint(Sketcher.Constraint("DistanceY", 0, 2, 0, 1, Q("2.3 mm")))
sketch12.addConstraint(Sketcher.Constraint("DistanceX", 0, 2, -1, 1, Q("1.5 mm")))
sketch12.addConstraint(Sketcher.Constraint("DistanceY", -1, 1, 0, 2, Q("1.8 mm")))
pocket9 = doc.addObject("PartDesign::Pocket", "Pocket008")
body.addObject(pocket9)
pocket9.Profile = sketch12
pocket9.Length = 0.1

doc.recompute()
